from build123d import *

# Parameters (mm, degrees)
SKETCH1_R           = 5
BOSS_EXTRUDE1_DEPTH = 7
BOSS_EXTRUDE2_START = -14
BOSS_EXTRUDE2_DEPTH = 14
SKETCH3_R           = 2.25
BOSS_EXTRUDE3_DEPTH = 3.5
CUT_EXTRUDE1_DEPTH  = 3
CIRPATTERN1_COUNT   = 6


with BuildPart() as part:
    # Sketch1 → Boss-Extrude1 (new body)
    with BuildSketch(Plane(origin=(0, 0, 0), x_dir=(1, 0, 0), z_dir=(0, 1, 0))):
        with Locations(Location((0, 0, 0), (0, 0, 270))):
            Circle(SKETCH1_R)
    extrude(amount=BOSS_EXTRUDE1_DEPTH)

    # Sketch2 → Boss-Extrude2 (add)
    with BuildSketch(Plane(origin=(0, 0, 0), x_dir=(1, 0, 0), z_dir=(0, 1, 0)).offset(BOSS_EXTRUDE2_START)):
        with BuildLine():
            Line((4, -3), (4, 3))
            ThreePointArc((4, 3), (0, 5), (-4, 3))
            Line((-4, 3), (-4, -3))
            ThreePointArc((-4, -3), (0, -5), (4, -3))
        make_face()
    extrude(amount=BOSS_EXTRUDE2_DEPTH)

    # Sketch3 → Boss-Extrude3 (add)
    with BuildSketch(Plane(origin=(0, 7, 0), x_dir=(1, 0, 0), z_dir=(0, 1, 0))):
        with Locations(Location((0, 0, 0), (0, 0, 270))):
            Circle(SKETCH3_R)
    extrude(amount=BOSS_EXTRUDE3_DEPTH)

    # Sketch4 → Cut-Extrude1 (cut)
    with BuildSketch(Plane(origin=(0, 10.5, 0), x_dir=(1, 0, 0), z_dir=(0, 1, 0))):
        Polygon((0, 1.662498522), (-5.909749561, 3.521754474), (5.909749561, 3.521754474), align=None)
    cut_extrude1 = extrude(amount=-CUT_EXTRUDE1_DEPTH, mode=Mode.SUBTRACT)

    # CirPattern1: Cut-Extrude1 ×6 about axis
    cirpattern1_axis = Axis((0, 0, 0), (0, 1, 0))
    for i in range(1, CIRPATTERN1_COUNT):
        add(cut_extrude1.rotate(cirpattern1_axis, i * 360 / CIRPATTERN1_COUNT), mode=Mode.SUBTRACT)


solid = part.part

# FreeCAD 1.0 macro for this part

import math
import FreeCAD as App
import Part
import Sketcher


def add_polygon(sketch, points):
    """Adds a closed chain of lines whose ends are joined by coincident constraints."""
    first, n = sketch.GeometryCount, len(points)
    for a, b in zip(points, points[1:] + points[:1]):
        sketch.addGeometry(Part.LineSegment(App.Vector(*a, 0), App.Vector(*b, 0)), False)
    for i in range(n):
        sketch.addConstraint(Sketcher.Constraint("Coincident", first + i, 2, first + (i + 1) % n, 1))

doc = App.newDocument("Part")
body = doc.addObject("PartDesign::Body", "Body")

sketch1 = body.newObject("Sketcher::SketchObject", "Sketch")
sketch1.AttachmentSupport = (doc.getObject("XZ_Plane"), [""])
sketch1.MapMode = "FlatFace"
sketch1.addGeometry(Part.Circle(App.Vector(0, 0, 0), App.Vector(0, 0, 1), 5), False)
sketch1.addConstraint([
    Sketcher.Constraint("Coincident", 0, 3, -1, 1),
    Sketcher.Constraint("Diameter", 0, 10.0),
])
pad1 = body.newObject("PartDesign::Pad", "Pad")
pad1.Profile = sketch1
pad1.Length = 7
pad1.Reversed = True

sketch2 = body.newObject("Sketcher::SketchObject", "Sketch001")
sketch2.AttachmentSupport = (doc.getObject("XZ_Plane"), [""])
sketch2.MapMode = "FlatFace"
sketch2.AttachmentOffset = App.Placement(App.Vector(0, 0, 14), App.Rotation())
sketch2.addGeometry([
    Part.LineSegment(App.Vector(4, 3, 0), App.Vector(4, -3, 0)),
    Part.ArcOfCircle(Part.Circle(App.Vector(0, 0, 0), App.Vector(0, 0, 1), 5), math.radians(-143), math.radians(-37)),
    Part.LineSegment(App.Vector(-4, -3, 0), App.Vector(-4, 3, 0)),
    Part.ArcOfCircle(Part.Circle(App.Vector(0, 0, 0), App.Vector(0, 0, 1), 5), math.radians(37), math.radians(143)),
], False)
sketch2.addConstraint([
    Sketcher.Constraint("Coincident", 0, 2, 1, 2),
    Sketcher.Constraint("Coincident", 1, 1, 2, 1),
    Sketcher.Constraint("Coincident", 2, 2, 3, 2),
    Sketcher.Constraint("Coincident", 3, 1, 0, 1),
    Sketcher.Constraint("Vertical", 0),
    Sketcher.Constraint("Vertical", 2),
    Sketcher.Constraint("Coincident", 1, 3, -1, 1),
    Sketcher.Constraint("Coincident", 3, 3, -1, 1),
    Sketcher.Constraint("Equal", 1, 3),
    Sketcher.Constraint("Horizontal", 0, 2, 1, 1),
    Sketcher.Constraint("Radius", 1, 5.0),
    Sketcher.Constraint("DistanceY", 0, 2, 0, 1, 6.0),
])
pad2 = body.newObject("PartDesign::Pad", "Pad001")
pad2.Profile = sketch2
pad2.Length = 14
pad2.Reversed = True

sketch3 = body.newObject("Sketcher::SketchObject", "Sketch002")
sketch3.AttachmentSupport = (doc.getObject("XZ_Plane"), [""])
sketch3.MapMode = "FlatFace"
sketch3.AttachmentOffset = App.Placement(App.Vector(0, 0, -7), App.Rotation())
sketch3.addGeometry(Part.Circle(App.Vector(0, 0, 0), App.Vector(0, 0, 1), 2.2), False)
sketch3.addConstraint([
    Sketcher.Constraint("Coincident", 0, 3, -1, 1),
    Sketcher.Constraint("Diameter", 0, 4.5),
])
pad3 = body.newObject("PartDesign::Pad", "Pad002")
pad3.Profile = sketch3
pad3.Length = 3.5
pad3.Reversed = True

sketch4 = body.newObject("Sketcher::SketchObject", "Sketch003")
sketch4.AttachmentSupport = (doc.getObject("XZ_Plane"), [""])
sketch4.MapMode = "FlatFace"
sketch4.AttachmentOffset = App.Placement(App.Vector(0, 0, -10.5), App.Rotation())
add_polygon(sketch4, [(-6, -4), (0, -2), (6, -4)])
sketch4.addConstraint([
    Sketcher.Constraint("Horizontal", 2),
    Sketcher.Constraint("PointOnObject", 0, 2, -2),
    Sketcher.Constraint("Equal", 0, 1),
    Sketcher.Constraint("DistanceX", 2, 2, 2, 1, 11.819499),
    Sketcher.Constraint("DistanceY", 0, 2, -1, 1, 1.662499),
    Sketcher.Constraint("Distance", 0, 6.195319),
])
pocket1 = body.newObject("PartDesign::Pocket", "Pocket")
pocket1.Profile = sketch4
pocket1.Length = 3
pocket1.Reversed = True
doc.recompute()

polarpattern = body.newObject("PartDesign::PolarPattern", "PolarPattern")
polarpattern.Originals = [pocket1]
polarpattern.Axis = (doc.getObject("Y_Axis"), [""])
polarpattern.Angle = 360
polarpattern.Occurrences = 6
body.Tip = polarpattern

doc.recompute()
